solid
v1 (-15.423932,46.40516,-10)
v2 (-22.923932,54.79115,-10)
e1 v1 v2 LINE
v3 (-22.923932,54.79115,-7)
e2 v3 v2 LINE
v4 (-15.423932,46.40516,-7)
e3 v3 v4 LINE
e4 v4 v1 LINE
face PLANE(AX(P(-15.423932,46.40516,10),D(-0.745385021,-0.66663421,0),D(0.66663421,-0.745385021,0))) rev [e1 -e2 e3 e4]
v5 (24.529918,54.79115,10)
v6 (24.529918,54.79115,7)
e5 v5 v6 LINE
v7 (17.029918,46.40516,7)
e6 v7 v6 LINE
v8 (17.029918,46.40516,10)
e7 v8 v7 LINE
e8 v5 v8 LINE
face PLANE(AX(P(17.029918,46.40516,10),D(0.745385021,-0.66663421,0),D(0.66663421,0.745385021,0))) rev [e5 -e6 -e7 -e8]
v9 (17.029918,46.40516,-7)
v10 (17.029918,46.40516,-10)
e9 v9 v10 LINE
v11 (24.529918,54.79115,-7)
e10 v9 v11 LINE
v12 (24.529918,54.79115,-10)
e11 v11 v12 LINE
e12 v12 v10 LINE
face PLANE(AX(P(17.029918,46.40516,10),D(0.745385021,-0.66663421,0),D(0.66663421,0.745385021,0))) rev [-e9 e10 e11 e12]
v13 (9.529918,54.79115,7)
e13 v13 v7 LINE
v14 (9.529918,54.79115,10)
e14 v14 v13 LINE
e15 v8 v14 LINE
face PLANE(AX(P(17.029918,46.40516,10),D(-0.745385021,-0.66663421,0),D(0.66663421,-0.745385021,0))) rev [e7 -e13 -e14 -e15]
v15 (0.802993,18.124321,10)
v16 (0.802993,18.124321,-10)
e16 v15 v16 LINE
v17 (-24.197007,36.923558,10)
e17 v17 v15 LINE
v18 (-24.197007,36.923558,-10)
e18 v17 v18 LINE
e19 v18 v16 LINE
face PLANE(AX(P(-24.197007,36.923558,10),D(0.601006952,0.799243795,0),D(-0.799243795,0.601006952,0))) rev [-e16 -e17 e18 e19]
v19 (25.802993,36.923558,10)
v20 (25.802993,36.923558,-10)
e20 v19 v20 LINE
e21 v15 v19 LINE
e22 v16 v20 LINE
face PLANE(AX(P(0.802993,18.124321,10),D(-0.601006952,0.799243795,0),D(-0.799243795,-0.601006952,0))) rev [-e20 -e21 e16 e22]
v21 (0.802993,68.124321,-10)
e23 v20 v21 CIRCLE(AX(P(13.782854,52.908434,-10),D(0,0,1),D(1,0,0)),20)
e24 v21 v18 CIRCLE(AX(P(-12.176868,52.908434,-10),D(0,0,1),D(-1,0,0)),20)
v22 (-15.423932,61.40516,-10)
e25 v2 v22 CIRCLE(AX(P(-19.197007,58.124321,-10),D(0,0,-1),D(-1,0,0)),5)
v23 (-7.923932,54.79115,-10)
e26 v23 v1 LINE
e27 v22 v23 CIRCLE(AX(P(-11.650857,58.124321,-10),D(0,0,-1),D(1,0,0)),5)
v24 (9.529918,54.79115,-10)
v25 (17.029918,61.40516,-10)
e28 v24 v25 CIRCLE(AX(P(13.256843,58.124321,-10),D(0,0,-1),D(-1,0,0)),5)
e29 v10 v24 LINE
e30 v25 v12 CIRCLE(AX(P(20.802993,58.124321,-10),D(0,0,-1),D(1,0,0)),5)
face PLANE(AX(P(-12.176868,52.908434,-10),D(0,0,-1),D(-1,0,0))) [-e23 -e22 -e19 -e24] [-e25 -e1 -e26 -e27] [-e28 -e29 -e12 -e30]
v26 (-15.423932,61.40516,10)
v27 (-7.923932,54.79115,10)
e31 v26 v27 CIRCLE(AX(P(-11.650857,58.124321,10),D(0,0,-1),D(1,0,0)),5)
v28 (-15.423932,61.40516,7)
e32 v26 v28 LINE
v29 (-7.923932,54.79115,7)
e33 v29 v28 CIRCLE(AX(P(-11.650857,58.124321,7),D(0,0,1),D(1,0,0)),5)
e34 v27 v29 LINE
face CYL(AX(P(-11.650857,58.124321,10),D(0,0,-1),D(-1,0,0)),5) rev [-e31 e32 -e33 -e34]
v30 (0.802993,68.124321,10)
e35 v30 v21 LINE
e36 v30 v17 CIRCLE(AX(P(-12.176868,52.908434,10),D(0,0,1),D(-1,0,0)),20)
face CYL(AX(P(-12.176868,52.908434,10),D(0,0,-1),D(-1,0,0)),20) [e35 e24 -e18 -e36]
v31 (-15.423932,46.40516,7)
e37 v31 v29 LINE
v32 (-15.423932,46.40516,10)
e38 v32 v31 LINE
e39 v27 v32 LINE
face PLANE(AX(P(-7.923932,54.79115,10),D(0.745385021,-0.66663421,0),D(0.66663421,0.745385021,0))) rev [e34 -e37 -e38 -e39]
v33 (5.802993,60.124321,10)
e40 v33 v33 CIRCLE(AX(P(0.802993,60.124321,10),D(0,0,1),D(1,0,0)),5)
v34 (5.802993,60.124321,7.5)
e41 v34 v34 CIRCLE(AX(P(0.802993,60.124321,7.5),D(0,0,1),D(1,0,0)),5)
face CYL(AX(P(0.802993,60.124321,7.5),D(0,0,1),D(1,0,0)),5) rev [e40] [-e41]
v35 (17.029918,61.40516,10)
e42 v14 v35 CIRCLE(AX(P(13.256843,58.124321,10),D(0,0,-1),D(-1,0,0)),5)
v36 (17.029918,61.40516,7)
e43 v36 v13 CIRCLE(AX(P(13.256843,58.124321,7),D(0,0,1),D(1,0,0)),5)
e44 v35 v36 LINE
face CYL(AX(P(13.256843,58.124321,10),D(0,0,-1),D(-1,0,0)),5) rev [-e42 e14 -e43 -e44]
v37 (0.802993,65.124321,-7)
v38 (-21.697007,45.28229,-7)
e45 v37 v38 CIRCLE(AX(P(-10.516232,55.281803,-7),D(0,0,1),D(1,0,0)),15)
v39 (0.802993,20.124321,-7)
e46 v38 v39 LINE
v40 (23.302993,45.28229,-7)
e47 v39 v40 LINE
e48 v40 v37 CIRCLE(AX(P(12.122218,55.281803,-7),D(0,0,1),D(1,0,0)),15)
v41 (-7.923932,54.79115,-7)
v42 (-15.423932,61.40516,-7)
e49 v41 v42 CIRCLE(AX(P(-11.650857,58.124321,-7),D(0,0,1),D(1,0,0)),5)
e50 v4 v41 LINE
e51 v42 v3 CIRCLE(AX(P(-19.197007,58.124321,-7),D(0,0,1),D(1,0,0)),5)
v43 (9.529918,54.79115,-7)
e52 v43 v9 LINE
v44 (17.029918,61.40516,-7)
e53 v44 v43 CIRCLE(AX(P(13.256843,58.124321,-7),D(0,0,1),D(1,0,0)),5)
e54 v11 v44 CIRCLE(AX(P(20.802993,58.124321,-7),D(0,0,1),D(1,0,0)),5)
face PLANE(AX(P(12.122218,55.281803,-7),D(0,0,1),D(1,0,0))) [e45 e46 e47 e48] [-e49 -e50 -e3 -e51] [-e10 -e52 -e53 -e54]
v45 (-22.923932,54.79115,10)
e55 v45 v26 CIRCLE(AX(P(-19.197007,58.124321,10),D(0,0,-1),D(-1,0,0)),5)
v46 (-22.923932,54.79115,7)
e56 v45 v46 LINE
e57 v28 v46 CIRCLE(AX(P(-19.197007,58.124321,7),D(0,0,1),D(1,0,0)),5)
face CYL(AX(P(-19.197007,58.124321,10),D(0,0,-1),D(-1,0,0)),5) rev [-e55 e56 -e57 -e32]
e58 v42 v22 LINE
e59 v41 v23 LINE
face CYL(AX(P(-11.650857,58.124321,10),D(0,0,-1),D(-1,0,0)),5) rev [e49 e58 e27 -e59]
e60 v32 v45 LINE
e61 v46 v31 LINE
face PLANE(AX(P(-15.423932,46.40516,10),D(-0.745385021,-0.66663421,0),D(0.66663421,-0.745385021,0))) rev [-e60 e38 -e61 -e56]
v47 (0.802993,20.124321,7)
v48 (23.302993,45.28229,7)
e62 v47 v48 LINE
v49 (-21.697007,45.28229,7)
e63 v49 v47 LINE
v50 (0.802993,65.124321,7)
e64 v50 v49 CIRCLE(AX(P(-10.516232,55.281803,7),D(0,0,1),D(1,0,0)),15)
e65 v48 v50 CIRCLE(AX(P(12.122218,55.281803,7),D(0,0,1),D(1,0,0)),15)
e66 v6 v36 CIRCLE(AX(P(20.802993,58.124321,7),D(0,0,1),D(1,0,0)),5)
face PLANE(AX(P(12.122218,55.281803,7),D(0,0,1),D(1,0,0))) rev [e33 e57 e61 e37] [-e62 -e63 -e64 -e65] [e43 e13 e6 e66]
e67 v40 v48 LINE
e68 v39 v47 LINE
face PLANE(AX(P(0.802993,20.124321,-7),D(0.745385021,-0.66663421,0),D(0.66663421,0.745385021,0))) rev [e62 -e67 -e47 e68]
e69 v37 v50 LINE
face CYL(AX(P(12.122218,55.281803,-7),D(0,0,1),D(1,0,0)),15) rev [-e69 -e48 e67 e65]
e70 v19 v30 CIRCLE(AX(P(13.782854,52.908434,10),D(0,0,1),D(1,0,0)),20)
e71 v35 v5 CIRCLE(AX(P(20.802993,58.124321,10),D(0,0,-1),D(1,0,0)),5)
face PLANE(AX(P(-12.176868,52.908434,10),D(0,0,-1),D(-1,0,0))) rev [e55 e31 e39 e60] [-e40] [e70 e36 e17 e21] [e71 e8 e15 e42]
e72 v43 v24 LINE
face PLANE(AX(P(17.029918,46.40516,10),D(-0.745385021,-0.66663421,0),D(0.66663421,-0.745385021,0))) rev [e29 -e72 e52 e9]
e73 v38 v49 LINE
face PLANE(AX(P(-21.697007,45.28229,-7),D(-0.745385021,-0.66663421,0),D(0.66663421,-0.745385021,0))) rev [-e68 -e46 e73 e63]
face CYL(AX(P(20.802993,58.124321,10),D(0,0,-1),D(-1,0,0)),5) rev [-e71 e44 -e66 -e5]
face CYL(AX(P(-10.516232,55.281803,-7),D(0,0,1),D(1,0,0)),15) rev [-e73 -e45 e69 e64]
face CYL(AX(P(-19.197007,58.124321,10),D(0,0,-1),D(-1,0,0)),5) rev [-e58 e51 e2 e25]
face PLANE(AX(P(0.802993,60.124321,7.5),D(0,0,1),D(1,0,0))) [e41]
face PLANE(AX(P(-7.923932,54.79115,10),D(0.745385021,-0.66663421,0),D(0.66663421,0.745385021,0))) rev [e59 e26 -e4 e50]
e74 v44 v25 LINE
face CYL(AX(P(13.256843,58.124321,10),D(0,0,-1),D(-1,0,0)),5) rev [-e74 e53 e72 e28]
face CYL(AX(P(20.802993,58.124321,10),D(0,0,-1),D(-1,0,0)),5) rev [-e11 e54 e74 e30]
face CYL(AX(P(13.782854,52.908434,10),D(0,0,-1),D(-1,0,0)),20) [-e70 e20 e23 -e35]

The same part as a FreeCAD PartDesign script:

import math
import FreeCAD as App
import Part
import Sketcher

doc = App.newDocument("Part")
body = doc.addObject("PartDesign::Body", "Body")

# Sketch on XY plane
sketch1 = body.newObject("Sketcher::SketchObject", "Sketch")
sketch1.AttachmentSupport = (doc.getObject("XY_Plane"), [""])
sketch1.MapMode = "FlatFace"
sketch1.addGeometry([
    Part.LineSegment(App.Vector(-24, 37, 0), App.Vector(1, 18, 0)),
    Part.LineSegment(App.Vector(1, 18, 0), App.Vector(26, 37, 0)),
    Part.ArcOfCircle(Part.Circle(App.Vector(14, 53, 0), App.Vector(0, 0, 1), 20), math.radians(-53), math.radians(130)),
    Part.ArcOfCircle(Part.Circle(App.Vector(-12, 53, 0), App.Vector(0, 0, 1), 20), math.radians(50), math.radians(233)),
], False)
sketch1.addConstraint([
    Sketcher.Constraint("Coincident", 0, 2, 1, 1),
    Sketcher.Constraint("Tangent", 1, 2, 2, 1),
    Sketcher.Constraint("Coincident", 2, 2, 3, 1),
    Sketcher.Constraint("Tangent", 3, 2, 0, 1),
    Sketcher.Constraint("Equal", 2, 3),
    Sketcher.Constraint("Horizontal", 2, 3, 3, 3),
    Sketcher.Constraint("Horizontal", 1, 2, 3, 2),
    Sketcher.Constraint("Radius", 2, 20.0),
    Sketcher.Constraint("DistanceX", 0, 2, 1, 2, 25.0),
    Sketcher.Constraint("DistanceY", 0, 2, 2, 2, 50.0),
    Sketcher.Constraint("DistanceX", 3, 3, -1, 1, 12.176868),
    Sketcher.Constraint("DistanceY", -1, 1, 0, 2, 18.124321),
])
pad1 = body.newObject("PartDesign::Pad", "Pad")
pad1.Profile = sketch1
pad1.Length = 20
pad1.Midplane = True

# Sketch on XY plane
sketch2 = body.newObject("Sketcher::SketchObject", "Sketch001")
sketch2.AttachmentSupport = (doc.getObject("XY_Plane"), [""])
sketch2.MapMode = "FlatFace"
sketch2.AttachmentOffset = App.Placement(App.Vector(0, 0, 10), App.Rotation())
sketch2.addGeometry(Part.Circle(App.Vector(1, 60, 0), App.Vector(0, 0, 1), 5), False)
sketch2.addConstraint([
    Sketcher.Constraint("Diameter", 0, 10.0),
    Sketcher.Constraint("DistanceY", -1, 1, 0, 3, 60.124321),
    Sketcher.Constraint("DistanceX", -1, 1, 0, 3, 0.802993),
])
pocket1 = body.newObject("PartDesign::Pocket", "Pocket")
pocket1.Profile = sketch2
pocket1.Length = 2.5

# Sketch on XY plane
sketch3 = body.newObject("Sketcher::SketchObject", "Sketch002")
sketch3.AttachmentSupport = (doc.getObject("XY_Plane"), [""])
sketch3.MapMode = "FlatFace"
sketch3.addGeometry([
    Part.LineSegment(App.Vector(1, 20, 0), App.Vector(23, 45, 0)),
    Part.ArcOfCircle(Part.Circle(App.Vector(12, 55, 0), App.Vector(0, 0, 1), 15), math.radians(-42), math.radians(139)),
    Part.ArcOfCircle(Part.Circle(App.Vector(-11, 55, 0), App.Vector(0, 0, 1), 15), math.radians(41), math.radians(222)),
    Part.LineSegment(App.Vector(-22, 45, 0), App.Vector(1, 20, 0)),
], False)
sketch3.addConstraint([
    Sketcher.Constraint("Tangent", 0, 2, 1, 1),
    Sketcher.Constraint("Coincident", 1, 2, 2, 1),
    Sketcher.Constraint("Tangent", 2, 2, 3, 1),
    Sketcher.Constraint("Coincident", 3, 2, 0, 1),
    Sketcher.Constraint("Equal", 1, 2),
    Sketcher.Constraint("Horizontal", 1, 3, 2, 3),
    Sketcher.Constraint("Horizontal", 0, 2, 2, 2),
    Sketcher.Constraint("Radius", 1, 15.0),
    Sketcher.Constraint("DistanceX", 2, 2, 0, 2, 45.0),
    Sketcher.Constraint("DistanceY", 3, 2, 1, 2, 45.0),
    Sketcher.Constraint("DistanceX", 2, 3, -1, 1, 10.516232),
    Sketcher.Constraint("DistanceY", -1, 1, 0, 2, 45.28229),
])
pocket2 = body.newObject("PartDesign::Pocket", "Pocket001")
pocket2.Profile = sketch3
pocket2.Length = 14
pocket2.Midplane = True

# Sketch on XY plane
sketch4 = body.newObject("Sketcher::SketchObject", "Sketch003")
sketch4.AttachmentSupport = (doc.getObject("XY_Plane"), [""])
sketch4.MapMode = "FlatFace"
sketch4.AttachmentOffset = App.Placement(App.Vector(0, 0, -10), App.Rotation())
sketch4.addGeometry([
    Part.LineSegment(App.Vector(-8, 55, 0), App.Vector(-15, 46, 0)),  # 0
    Part.LineSegment(App.Vector(-15, 46, 0), App.Vector(-23, 55, 0)),  # 1
    Part.ArcOfCircle(Part.Circle(App.Vector(-19, 58, 0), App.Vector(0, 0, 1), 5), math.radians(41), math.radians(222)),  # 2
    Part.ArcOfCircle(Part.Circle(App.Vector(-12, 58, 0), App.Vector(0, 0, 1), 5), math.radians(-42), math.radians(139)),  # 3
    Part.LineSegment(App.Vector(25, 55, 0), App.Vector(17, 46, 0)),  # 4
    Part.LineSegment(App.Vector(17, 46, 0), App.Vector(10, 55, 0)),  # 5
    Part.ArcOfCircle(Part.Circle(App.Vector(13, 58, 0), App.Vector(0, 0, 1), 5), math.radians(41), math.radians(222)),  # 6
    Part.ArcOfCircle(Part.Circle(App.Vector(21, 58, 0), App.Vector(0, 0, 1), 5), math.radians(-42), math.radians(139)),  # 7
], False)
sketch4.addConstraint([
    Sketcher.Constraint("Coincident", 0, 2, 1, 1),
    Sketcher.Constraint("Tangent", 1, 2, 2, 2),
    Sketcher.Constraint("Coincident", 2, 1, 3, 2),
    Sketcher.Constraint("Tangent", 3, 1, 0, 1),
    Sketcher.Constraint("Coincident", 4, 2, 5, 1),
    Sketcher.Constraint("Tangent", 5, 2, 6, 2),
    Sketcher.Constraint("Coincident", 6, 1, 7, 2),
    Sketcher.Constraint("Tangent", 7, 1, 4, 1),
    Sketcher.Constraint("Equal", 2, 3),
    Sketcher.Constraint("Equal", 3, 6),
    Sketcher.Constraint("Equal", 6, 7),
    Sketcher.Constraint("Parallel", 0, 4),
    Sketcher.Constraint("Parallel", 1, 5),
    Sketcher.Constraint("Horizontal", 2, 3, 3, 3),
    Sketcher.Constraint("Horizontal", 3, 3, 6, 3),
    Sketcher.Constraint("Horizontal", 6, 3, 7, 3),
    Sketcher.Constraint("Horizontal", 1, 2, 3, 1),
    Sketcher.Constraint("Horizontal", 0, 2, 4, 2),
    Sketcher.Constraint("Radius", 2, 5.0),
    Sketcher.Constraint("DistanceX", 2, 3, 7, 3, 40.0),
    Sketcher.Constraint("DistanceY", 0, 2, 2, 1, 15.0),
    Sketcher.Constraint("DistanceX", 1, 2, 3, 1, 15.0),
    Sketcher.Constraint("DistanceY", -1, 1, 2, 3, 58.124321),
    Sketcher.Constraint("DistanceX", 2, 3, -1, 1, 19.197007),
])
pocket3 = body.newObject("PartDesign::Pocket", "Pocket002")
pocket3.Profile = sketch4
pocket3.Length = 20
pocket3.Reversed = True

doc.recompute()
